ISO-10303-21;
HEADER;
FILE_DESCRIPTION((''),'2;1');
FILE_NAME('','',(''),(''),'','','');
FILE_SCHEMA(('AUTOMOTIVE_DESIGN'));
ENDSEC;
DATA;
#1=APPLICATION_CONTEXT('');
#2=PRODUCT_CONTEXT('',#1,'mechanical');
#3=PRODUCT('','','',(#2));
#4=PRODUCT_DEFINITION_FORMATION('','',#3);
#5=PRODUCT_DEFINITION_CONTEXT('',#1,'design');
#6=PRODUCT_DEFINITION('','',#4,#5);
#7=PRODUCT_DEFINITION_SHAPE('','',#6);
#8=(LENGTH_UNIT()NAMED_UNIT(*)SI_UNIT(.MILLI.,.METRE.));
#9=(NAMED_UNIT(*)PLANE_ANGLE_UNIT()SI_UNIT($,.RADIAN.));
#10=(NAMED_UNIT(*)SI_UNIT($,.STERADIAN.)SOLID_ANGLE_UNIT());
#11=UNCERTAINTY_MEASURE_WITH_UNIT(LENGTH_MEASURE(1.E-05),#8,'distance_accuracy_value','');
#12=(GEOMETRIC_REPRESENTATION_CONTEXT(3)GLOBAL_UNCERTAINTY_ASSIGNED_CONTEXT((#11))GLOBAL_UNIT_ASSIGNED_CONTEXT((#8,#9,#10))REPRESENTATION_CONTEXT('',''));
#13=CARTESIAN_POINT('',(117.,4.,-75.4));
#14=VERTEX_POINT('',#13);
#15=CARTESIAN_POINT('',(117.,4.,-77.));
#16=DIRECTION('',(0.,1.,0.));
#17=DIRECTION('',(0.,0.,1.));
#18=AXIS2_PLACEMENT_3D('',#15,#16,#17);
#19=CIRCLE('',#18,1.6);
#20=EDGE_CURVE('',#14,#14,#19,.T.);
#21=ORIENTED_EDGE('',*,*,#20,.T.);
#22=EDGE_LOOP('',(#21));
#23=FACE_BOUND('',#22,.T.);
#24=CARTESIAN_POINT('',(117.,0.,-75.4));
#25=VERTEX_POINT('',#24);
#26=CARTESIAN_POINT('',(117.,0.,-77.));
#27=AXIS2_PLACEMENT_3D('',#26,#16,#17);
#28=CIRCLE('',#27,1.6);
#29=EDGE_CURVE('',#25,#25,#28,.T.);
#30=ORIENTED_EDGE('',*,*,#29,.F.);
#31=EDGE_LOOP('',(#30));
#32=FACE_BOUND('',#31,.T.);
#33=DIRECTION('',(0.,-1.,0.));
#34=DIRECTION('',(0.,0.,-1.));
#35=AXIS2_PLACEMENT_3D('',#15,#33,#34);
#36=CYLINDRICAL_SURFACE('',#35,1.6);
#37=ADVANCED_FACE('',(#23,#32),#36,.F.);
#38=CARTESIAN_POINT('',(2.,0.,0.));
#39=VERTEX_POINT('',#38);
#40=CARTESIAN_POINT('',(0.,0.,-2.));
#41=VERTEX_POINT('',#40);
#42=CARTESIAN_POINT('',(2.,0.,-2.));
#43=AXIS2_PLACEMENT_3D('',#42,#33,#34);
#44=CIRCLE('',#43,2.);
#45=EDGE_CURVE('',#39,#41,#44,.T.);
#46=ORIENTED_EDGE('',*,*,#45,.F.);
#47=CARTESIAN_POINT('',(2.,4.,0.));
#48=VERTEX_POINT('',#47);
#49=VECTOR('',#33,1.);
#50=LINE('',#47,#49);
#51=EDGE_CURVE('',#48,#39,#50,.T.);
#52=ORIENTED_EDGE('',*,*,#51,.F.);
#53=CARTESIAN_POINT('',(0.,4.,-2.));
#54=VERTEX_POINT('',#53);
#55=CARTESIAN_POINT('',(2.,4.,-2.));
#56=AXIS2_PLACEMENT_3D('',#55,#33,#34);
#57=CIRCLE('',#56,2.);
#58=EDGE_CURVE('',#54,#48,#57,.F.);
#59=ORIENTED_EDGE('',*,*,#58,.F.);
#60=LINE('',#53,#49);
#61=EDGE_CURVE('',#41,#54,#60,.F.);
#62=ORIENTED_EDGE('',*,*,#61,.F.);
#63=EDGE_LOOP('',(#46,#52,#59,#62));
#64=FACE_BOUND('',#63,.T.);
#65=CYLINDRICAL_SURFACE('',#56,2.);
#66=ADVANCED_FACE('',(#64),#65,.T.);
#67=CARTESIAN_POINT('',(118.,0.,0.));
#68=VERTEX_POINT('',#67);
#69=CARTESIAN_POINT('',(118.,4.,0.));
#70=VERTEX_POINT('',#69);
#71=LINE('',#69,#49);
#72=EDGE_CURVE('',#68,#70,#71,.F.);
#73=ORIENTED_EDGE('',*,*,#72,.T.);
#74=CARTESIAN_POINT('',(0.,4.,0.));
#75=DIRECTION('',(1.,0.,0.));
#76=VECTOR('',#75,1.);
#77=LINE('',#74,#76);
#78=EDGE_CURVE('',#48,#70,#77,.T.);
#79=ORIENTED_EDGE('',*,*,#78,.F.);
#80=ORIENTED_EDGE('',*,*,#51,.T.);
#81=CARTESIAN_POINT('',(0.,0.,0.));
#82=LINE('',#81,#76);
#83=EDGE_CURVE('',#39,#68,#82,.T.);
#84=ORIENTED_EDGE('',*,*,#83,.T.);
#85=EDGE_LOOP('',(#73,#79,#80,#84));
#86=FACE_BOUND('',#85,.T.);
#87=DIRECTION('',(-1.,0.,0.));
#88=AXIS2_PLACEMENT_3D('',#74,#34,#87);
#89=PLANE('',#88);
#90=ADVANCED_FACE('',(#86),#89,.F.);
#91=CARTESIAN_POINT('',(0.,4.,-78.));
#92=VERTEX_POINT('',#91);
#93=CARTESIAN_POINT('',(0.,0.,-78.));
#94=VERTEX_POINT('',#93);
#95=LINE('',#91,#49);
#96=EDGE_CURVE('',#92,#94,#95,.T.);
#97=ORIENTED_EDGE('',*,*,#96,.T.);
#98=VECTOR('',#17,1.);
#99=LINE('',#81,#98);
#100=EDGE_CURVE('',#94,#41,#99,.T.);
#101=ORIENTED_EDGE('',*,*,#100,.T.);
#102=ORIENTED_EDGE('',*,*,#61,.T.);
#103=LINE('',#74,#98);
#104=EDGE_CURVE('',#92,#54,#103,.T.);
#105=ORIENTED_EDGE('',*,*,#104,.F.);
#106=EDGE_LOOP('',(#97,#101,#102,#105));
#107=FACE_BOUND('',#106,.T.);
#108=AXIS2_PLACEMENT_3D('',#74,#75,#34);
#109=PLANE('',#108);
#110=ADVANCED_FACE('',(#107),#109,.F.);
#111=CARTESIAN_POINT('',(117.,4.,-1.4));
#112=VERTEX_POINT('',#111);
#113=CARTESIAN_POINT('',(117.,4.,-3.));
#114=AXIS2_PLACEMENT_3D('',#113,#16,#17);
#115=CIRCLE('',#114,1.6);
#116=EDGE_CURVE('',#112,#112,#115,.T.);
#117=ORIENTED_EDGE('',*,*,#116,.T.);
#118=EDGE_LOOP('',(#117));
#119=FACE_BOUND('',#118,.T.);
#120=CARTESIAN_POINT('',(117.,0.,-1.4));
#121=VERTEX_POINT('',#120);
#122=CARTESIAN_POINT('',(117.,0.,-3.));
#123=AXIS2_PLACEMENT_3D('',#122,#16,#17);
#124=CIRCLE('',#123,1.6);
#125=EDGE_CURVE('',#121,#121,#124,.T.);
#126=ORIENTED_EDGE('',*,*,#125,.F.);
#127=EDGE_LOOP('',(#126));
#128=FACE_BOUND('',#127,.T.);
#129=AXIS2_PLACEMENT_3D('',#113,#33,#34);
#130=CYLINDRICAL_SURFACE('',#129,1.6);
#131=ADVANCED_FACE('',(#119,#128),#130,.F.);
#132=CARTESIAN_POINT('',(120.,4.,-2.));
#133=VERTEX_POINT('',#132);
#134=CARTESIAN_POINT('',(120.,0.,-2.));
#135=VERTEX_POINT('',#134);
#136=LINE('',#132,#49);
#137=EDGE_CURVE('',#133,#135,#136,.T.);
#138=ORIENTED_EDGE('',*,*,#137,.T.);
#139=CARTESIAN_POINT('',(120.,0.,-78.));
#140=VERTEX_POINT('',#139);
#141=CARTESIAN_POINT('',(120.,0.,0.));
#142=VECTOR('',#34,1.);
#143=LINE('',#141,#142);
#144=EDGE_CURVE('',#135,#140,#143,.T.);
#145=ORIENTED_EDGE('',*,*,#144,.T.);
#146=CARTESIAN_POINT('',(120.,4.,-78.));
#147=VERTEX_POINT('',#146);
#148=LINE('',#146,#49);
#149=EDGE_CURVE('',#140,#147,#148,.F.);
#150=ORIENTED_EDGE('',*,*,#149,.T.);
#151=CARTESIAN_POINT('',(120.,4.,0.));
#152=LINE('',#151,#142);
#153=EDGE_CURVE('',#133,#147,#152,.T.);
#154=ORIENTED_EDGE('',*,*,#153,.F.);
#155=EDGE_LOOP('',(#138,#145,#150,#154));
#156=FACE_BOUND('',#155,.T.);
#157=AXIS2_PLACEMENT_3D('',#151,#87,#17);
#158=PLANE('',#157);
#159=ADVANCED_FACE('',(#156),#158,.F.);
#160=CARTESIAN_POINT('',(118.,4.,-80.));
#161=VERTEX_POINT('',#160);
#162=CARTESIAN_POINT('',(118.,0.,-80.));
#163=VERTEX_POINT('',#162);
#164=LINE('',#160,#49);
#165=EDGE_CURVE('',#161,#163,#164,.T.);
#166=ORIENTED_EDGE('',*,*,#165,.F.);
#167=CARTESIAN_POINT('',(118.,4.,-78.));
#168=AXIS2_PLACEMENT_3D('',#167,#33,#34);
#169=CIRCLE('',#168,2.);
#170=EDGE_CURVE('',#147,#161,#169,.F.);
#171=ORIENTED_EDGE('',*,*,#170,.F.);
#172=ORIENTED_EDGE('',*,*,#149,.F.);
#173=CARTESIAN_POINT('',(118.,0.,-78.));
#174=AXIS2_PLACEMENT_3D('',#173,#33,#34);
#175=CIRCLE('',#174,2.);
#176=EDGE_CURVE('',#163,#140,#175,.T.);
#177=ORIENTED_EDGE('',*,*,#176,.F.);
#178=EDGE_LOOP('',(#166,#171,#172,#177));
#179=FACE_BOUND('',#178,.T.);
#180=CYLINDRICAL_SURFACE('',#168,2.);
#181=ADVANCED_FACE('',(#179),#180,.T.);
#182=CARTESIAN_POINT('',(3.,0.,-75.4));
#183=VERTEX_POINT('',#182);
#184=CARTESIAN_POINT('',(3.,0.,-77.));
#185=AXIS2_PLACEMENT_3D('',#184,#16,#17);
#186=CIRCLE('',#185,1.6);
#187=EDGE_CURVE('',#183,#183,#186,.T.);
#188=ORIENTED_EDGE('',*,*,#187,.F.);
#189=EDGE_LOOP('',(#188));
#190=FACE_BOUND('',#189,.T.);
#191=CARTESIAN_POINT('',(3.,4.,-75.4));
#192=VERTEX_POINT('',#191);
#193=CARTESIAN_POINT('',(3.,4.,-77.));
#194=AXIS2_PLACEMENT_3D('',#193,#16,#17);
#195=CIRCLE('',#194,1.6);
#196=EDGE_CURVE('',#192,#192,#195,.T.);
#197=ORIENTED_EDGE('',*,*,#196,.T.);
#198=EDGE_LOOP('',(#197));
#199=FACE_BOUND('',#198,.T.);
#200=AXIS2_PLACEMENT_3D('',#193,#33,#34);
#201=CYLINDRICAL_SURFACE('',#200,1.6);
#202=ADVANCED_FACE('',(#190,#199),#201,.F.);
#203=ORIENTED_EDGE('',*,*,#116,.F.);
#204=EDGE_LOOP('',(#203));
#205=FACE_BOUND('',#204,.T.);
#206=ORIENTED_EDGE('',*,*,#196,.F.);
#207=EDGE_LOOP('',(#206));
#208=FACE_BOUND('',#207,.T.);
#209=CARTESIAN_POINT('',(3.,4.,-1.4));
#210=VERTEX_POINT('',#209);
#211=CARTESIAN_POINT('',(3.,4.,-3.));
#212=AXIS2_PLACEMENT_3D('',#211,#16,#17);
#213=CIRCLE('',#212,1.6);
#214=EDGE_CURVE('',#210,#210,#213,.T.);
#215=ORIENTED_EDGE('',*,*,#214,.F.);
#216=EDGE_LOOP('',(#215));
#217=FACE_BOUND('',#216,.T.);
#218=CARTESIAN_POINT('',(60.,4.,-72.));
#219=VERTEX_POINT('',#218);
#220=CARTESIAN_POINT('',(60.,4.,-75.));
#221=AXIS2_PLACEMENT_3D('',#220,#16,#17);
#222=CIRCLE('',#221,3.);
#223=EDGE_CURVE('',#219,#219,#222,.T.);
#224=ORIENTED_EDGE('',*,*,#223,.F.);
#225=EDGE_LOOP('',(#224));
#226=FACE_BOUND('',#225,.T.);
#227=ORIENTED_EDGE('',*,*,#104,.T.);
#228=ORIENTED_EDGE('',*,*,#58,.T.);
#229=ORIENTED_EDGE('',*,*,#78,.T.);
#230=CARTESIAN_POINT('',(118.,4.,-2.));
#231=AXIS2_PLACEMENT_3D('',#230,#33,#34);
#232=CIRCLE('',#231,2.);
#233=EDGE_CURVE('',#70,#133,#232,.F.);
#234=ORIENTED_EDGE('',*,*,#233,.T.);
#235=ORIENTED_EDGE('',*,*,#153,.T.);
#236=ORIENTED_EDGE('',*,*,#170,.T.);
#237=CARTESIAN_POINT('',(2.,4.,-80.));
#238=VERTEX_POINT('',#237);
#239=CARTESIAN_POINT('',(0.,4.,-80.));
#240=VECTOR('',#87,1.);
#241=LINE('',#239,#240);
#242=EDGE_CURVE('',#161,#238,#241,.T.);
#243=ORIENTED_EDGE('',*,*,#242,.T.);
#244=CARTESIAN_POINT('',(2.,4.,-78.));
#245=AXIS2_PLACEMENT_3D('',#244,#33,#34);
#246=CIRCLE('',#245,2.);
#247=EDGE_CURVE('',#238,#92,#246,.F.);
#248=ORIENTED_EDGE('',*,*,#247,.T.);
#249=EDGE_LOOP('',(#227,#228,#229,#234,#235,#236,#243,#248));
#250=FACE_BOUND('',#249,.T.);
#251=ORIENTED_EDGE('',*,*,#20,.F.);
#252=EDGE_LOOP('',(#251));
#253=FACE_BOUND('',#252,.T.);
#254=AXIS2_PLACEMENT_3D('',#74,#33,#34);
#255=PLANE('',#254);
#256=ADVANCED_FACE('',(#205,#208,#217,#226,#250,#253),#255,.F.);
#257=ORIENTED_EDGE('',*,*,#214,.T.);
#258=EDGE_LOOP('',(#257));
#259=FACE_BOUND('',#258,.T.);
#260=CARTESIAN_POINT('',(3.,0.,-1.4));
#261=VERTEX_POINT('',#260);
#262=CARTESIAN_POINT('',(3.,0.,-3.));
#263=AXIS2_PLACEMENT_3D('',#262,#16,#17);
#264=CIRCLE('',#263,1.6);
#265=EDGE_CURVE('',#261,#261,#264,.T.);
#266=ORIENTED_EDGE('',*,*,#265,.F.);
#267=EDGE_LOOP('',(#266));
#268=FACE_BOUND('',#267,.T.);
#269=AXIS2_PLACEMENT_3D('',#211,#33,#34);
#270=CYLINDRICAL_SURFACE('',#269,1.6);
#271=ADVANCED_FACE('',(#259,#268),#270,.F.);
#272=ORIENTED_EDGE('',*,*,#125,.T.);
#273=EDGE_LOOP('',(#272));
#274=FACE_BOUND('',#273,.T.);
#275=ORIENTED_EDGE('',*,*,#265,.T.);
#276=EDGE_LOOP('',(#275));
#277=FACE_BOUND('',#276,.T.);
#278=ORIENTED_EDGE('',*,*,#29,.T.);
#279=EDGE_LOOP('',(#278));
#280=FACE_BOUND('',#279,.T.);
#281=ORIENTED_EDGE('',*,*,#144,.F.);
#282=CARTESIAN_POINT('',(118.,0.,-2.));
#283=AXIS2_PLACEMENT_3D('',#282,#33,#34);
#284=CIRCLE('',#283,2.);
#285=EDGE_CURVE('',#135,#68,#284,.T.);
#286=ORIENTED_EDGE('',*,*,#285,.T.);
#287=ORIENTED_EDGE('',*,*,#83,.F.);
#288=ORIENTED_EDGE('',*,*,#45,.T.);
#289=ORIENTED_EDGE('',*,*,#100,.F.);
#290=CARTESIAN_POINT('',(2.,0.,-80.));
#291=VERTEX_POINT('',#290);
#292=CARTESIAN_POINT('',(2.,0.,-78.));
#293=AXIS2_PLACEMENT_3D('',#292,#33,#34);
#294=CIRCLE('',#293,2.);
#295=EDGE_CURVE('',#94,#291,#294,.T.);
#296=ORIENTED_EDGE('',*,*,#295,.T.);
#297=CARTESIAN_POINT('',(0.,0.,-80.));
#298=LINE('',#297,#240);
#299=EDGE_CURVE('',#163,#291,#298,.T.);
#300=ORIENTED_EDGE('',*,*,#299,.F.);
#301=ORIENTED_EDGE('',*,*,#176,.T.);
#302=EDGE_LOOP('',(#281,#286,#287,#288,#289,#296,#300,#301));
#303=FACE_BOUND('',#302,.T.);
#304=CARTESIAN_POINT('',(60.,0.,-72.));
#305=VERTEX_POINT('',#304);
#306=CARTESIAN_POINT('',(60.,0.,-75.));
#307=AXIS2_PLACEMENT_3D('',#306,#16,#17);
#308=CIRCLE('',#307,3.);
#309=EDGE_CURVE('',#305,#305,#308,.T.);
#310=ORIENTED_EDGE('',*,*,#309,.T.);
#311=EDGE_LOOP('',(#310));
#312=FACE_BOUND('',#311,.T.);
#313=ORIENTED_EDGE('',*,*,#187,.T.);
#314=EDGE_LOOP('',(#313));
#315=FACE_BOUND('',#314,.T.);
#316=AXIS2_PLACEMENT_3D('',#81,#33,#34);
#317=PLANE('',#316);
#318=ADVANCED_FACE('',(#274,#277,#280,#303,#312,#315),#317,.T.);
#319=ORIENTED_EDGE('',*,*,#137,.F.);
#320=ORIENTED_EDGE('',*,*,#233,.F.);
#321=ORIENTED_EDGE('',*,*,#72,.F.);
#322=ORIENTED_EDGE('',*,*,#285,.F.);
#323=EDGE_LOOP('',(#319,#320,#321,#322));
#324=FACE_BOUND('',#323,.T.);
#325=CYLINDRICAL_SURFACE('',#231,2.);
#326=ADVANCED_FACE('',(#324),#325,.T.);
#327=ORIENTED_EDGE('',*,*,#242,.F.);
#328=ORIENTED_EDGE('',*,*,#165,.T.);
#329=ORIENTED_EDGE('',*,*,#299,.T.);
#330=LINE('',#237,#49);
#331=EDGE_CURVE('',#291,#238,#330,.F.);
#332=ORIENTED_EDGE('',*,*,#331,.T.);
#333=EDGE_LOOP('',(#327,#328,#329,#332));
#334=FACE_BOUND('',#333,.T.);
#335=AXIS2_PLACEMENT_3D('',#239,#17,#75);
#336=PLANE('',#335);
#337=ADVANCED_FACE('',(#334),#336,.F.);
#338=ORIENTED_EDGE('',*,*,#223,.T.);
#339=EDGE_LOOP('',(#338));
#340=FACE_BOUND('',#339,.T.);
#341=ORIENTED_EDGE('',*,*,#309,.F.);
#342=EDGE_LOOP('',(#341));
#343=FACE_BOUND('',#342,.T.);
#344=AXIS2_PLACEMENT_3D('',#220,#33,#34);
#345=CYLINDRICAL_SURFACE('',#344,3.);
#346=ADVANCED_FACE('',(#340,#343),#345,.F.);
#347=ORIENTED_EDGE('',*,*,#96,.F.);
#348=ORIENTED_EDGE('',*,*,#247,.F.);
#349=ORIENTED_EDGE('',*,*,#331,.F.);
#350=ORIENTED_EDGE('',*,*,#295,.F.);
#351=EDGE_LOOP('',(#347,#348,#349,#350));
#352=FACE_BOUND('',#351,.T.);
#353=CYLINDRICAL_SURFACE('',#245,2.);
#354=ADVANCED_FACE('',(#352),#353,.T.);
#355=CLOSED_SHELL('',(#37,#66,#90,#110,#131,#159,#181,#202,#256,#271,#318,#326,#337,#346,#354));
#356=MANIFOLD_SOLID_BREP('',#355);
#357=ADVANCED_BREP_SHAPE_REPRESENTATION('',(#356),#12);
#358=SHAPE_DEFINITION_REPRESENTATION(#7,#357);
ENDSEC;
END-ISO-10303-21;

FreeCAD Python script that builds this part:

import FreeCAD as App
import Part
import Sketcher


def edges_at(feature, points):
    """Names of the edges that pass closest to the given points."""
    edges = feature.Shape.Edges
    near = lambda p: min(range(len(edges)), key=lambda i: edges[i].distToShape(Part.Vertex(*p))[0])
    return sorted({f"Edge{near(p) + 1}" for p in points})

doc = App.newDocument("Part")
params = doc.addObject("Spreadsheet::Sheet", "Params")
for row, (alias, value) in enumerate([
    ("sketch1_diameter", "6 mm"),
    ("sketch1_diameter2", "3.2 mm"),
    ("sketch1_width", "120 mm"),
    ("sketch1_height", "80 mm"),
    ("pad1_length", "4 mm"),
    ("fillet_radius", "2 mm"),
    ("fillet2_radius", "2 mm"),
    ("fillet3_radius", "2 mm"),
    ("fillet4_radius", "2 mm"),
], start=1):
    params.set(f"A{row}", alias)
    params.set(f"B{row}", "=" + value)
    params.setAlias(f"B{row}", alias)

body = doc.addObject("PartDesign::Body", "Body")

sketch1 = body.newObject("Sketcher::SketchObject", "Sketch")
sketch1.AttachmentSupport = (doc.getObject("XZ_Plane"), [""])
sketch1.MapMode = "FlatFace"
sketch1.addGeometry(Part.LineSegment(App.Vector(0, -80, 0), App.Vector(0, 0, 0)), False)
sketch1.addGeometry(Part.LineSegment(App.Vector(0, 0, 0), App.Vector(120, 0, 0)), False)
sketch1.addGeometry(Part.LineSegment(App.Vector(120, 0, 0), App.Vector(120, -80, 0)), False)
sketch1.addGeometry(Part.LineSegment(App.Vector(120, -80, 0), App.Vector(0, -80, 0)), False)
sketch1.addGeometry(Part.Circle(App.Vector(3, -3, 0), App.Vector(0, 0, 1), 1.6), False)
sketch1.addGeometry(Part.Circle(App.Vector(117, -3, 0), App.Vector(0, 0, 1), 1.6), False)
sketch1.addGeometry(Part.Circle(App.Vector(3, -77, 0), App.Vector(0, 0, 1), 1.6), False)
sketch1.addGeometry(Part.Circle(App.Vector(60, -75, 0), App.Vector(0, 0, 1), 3), False)
sketch1.addGeometry(Part.Circle(App.Vector(117, -77, 0), App.Vector(0, 0, 1), 1.6), False)
sketch1.addConstraint(Sketcher.Constraint("Coincident", 0, 2, 1, 1))
sketch1.addConstraint(Sketcher.Constraint("Coincident", 1, 2, 2, 1))
sketch1.addConstraint(Sketcher.Constraint("Coincident", 2, 2, 3, 1))
sketch1.addConstraint(Sketcher.Constraint("Coincident", 3, 2, 0, 1))
sketch1.addConstraint(Sketcher.Constraint("Vertical", 0))
sketch1.addConstraint(Sketcher.Constraint("Horizontal", 1))
sketch1.addConstraint(Sketcher.Constraint("Vertical", 2))
sketch1.addConstraint(Sketcher.Constraint("Horizontal", 3))
sketch1.addConstraint(Sketcher.Constraint("Coincident", 0, 2, -1, 1))
sketch1.addConstraint(Sketcher.Constraint("Equal", 4, 5))
sketch1.addConstraint(Sketcher.Constraint("Equal", 5, 6))
sketch1.addConstraint(Sketcher.Constraint("Equal", 6, 8))
sketch1.addConstraint(Sketcher.Constraint("Horizontal", 4, 3, 5, 3))
sketch1.addConstraint(Sketcher.Constraint("Horizontal", 6, 3, 8, 3))
sketch1.addConstraint(Sketcher.Constraint("Vertical", 4, 3, 6, 3))
sketch1.addConstraint(Sketcher.Constraint("Vertical", 5, 3, 8, 3))
sketch1.addConstraint(Sketcher.Constraint("Diameter", 7, 6.0))
sketch1.addConstraint(Sketcher.Constraint("Diameter", 4, 3.2))
sketch1.addConstraint(Sketcher.Constraint("DistanceX", 1, 1, 1, 2, 120.0))
sketch1.addConstraint(Sketcher.Constraint("DistanceY", 0, 1, 0, 2, 80.0))
sketch1.addConstraint(Sketcher.Constraint("DistanceX", -1, 1, 4, 3, 3.0))
sketch1.addConstraint(Sketcher.Constraint("DistanceY", 4, 3, -1, 1, 3.0))
sketch1.addConstraint(Sketcher.Constraint("DistanceX", -1, 1, 5, 3, 117.0))
sketch1.addConstraint(Sketcher.Constraint("DistanceY", 6, 3, -1, 1, 77.0))
sketch1.addConstraint(Sketcher.Constraint("DistanceX", -1, 1, 7, 3, 60.0))
sketch1.addConstraint(Sketcher.Constraint("DistanceY", 7, 3, -1, 1, 75.0))
sketch1.setExpression("Constraints[16]", "Params.sketch1_diameter")
sketch1.setExpression("Constraints[17]", "Params.sketch1_diameter2")
sketch1.setExpression("Constraints[18]", "Params.sketch1_width")
sketch1.setExpression("Constraints[19]", "Params.sketch1_height")
pad1 = body.newObject("PartDesign::Pad", "Pad")
pad1.Profile = sketch1
pad1.setExpression("Length", "Params.pad1_length")
pad1.Reversed = True
doc.recompute()

fillet = body.newObject("PartDesign::Fillet", "Fillet")
fillet.Base = (pad1, edges_at(pad1, [(0, 2, 0)]))
fillet.setExpression("Radius", "Params.fillet_radius")
doc.recompute()

fillet2 = body.newObject("PartDesign::Fillet", "Fillet001")
fillet2.Base = (fillet, edges_at(fillet, [(120, 2, 0)]))
fillet2.setExpression("Radius", "Params.fillet2_radius")
doc.recompute()

fillet3 = body.newObject("PartDesign::Fillet", "Fillet002")
fillet3.Base = (fillet2, edges_at(fillet2, [(120, 2, -80)]))
fillet3.setExpression("Radius", "Params.fillet3_radius")
doc.recompute()

fillet4 = body.newObject("PartDesign::Fillet", "Fillet003")
fillet4.Base = (fillet3, edges_at(fillet3, [(0, 2, -80)]))
fillet4.setExpression("Radius", "Params.fillet4_radius")

doc.recompute()
